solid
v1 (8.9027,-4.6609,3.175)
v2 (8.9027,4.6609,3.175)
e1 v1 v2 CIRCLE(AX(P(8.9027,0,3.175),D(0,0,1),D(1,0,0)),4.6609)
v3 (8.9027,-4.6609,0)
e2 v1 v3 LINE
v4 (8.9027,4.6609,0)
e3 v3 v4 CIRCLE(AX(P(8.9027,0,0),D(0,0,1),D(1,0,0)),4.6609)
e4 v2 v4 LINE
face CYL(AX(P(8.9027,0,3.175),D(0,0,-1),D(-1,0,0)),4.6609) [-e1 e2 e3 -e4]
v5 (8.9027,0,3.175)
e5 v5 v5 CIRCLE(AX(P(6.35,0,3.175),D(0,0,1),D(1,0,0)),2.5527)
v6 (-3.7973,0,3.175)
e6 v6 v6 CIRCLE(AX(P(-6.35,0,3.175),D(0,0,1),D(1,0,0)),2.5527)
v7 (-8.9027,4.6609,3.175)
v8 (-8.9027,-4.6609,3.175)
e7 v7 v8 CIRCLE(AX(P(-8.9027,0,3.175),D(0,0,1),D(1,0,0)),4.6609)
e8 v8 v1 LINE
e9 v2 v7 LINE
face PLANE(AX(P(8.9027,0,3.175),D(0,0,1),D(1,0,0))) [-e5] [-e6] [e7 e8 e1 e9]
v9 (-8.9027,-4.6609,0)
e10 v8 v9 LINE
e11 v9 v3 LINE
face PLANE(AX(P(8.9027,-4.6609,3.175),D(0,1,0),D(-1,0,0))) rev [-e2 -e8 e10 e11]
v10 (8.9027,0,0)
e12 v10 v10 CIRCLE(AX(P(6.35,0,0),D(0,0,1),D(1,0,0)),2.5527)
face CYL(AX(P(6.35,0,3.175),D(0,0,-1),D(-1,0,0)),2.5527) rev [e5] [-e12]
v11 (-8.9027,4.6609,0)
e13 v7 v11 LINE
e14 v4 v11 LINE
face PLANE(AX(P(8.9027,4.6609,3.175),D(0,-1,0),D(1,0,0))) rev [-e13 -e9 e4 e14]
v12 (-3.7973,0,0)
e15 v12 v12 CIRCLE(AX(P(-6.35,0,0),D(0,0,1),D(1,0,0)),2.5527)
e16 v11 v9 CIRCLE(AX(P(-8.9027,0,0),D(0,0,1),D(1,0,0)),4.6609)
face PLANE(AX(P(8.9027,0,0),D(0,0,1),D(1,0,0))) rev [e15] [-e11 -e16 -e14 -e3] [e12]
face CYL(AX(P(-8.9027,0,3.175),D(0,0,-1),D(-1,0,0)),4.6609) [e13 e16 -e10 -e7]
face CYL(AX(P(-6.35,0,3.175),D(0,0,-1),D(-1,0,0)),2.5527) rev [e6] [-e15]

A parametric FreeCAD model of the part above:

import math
import FreeCAD as App
import Part
import Sketcher
Q = App.Units.Quantity

doc = App.newDocument("Part")
body = doc.addObject("PartDesign::Body", "Body")

# Sketch on XY plane
sketch1 = body.newObject("Sketcher::SketchObject", "Sketch")
sketch1.AttachmentSupport = (doc.getObject("XY_Plane"), [""])
sketch1.MapMode = "FlatFace"
sketch1.addGeometry(Part.LineSegment(App.Vector(8.9027, 4.6609, 0), App.Vector(-8.9027, 4.6609, 0)), False)
sketch1.addGeometry(Part.ArcOfCircle(Part.Circle(App.Vector(-8.9027, 0, 0), App.Vector(0, 0, 1), 4.6609), math.radians(90), math.radians(270)), False)
sketch1.addGeometry(Part.LineSegment(App.Vector(-8.9027, -4.6609, 0), App.Vector(8.9027, -4.6609, 0)), False)
sketch1.addGeometry(Part.ArcOfCircle(Part.Circle(App.Vector(8.9027, 0, 0), App.Vector(0, 0, 1), 4.6609), math.radians(-90), math.radians(90)), False)
sketch1.addGeometry(Part.Circle(App.Vector(-6.35, 0, 0), App.Vector(0, 0, 1), 2.5527), False)
sketch1.addGeometry(Part.Circle(App.Vector(6.35, 0, 0), App.Vector(0, 0, 1), 2.5527), False)
sketch1.addConstraint(Sketcher.Constraint("Tangent", 0, 2, 1, 1))
sketch1.addConstraint(Sketcher.Constraint("Tangent", 1, 2, 2, 1))
sketch1.addConstraint(Sketcher.Constraint("Tangent", 2, 2, 3, 1))
sketch1.addConstraint(Sketcher.Constraint("Tangent", 3, 2, 0, 1))
sketch1.addConstraint(Sketcher.Constraint("Horizontal", 0))
sketch1.addConstraint(Sketcher.Constraint("Horizontal", 2))
sketch1.addConstraint(Sketcher.Constraint("Equal", 4, 5))
sketch1.addConstraint(Sketcher.Constraint("Symmetric", 1, 3, 3, 3, -1, 1))
sketch1.addConstraint(Sketcher.Constraint("Symmetric", 4, 3, 5, 3, -1, 1))
sketch1.addConstraint(Sketcher.Constraint("PointOnObject", 4, 3, -1))
sketch1.addConstraint(Sketcher.Constraint("Diameter", 4, Q("0.201 in")))
sketch1.addConstraint(Sketcher.Constraint("Radius", 1, Q("0.1835 in")))
sketch1.addConstraint(Sketcher.Constraint("DistanceX", 4, 3, 5, 3, Q("0.5 in")))
sketch1.addConstraint(Sketcher.Constraint("DistanceX", 0, 2, 0, 1, Q("0.701 in")))
pad1 = body.newObject("PartDesign::Pad", "Pad")
pad1.Profile = sketch1
pad1.Length = Q("0.125 in")

doc.recompute()
